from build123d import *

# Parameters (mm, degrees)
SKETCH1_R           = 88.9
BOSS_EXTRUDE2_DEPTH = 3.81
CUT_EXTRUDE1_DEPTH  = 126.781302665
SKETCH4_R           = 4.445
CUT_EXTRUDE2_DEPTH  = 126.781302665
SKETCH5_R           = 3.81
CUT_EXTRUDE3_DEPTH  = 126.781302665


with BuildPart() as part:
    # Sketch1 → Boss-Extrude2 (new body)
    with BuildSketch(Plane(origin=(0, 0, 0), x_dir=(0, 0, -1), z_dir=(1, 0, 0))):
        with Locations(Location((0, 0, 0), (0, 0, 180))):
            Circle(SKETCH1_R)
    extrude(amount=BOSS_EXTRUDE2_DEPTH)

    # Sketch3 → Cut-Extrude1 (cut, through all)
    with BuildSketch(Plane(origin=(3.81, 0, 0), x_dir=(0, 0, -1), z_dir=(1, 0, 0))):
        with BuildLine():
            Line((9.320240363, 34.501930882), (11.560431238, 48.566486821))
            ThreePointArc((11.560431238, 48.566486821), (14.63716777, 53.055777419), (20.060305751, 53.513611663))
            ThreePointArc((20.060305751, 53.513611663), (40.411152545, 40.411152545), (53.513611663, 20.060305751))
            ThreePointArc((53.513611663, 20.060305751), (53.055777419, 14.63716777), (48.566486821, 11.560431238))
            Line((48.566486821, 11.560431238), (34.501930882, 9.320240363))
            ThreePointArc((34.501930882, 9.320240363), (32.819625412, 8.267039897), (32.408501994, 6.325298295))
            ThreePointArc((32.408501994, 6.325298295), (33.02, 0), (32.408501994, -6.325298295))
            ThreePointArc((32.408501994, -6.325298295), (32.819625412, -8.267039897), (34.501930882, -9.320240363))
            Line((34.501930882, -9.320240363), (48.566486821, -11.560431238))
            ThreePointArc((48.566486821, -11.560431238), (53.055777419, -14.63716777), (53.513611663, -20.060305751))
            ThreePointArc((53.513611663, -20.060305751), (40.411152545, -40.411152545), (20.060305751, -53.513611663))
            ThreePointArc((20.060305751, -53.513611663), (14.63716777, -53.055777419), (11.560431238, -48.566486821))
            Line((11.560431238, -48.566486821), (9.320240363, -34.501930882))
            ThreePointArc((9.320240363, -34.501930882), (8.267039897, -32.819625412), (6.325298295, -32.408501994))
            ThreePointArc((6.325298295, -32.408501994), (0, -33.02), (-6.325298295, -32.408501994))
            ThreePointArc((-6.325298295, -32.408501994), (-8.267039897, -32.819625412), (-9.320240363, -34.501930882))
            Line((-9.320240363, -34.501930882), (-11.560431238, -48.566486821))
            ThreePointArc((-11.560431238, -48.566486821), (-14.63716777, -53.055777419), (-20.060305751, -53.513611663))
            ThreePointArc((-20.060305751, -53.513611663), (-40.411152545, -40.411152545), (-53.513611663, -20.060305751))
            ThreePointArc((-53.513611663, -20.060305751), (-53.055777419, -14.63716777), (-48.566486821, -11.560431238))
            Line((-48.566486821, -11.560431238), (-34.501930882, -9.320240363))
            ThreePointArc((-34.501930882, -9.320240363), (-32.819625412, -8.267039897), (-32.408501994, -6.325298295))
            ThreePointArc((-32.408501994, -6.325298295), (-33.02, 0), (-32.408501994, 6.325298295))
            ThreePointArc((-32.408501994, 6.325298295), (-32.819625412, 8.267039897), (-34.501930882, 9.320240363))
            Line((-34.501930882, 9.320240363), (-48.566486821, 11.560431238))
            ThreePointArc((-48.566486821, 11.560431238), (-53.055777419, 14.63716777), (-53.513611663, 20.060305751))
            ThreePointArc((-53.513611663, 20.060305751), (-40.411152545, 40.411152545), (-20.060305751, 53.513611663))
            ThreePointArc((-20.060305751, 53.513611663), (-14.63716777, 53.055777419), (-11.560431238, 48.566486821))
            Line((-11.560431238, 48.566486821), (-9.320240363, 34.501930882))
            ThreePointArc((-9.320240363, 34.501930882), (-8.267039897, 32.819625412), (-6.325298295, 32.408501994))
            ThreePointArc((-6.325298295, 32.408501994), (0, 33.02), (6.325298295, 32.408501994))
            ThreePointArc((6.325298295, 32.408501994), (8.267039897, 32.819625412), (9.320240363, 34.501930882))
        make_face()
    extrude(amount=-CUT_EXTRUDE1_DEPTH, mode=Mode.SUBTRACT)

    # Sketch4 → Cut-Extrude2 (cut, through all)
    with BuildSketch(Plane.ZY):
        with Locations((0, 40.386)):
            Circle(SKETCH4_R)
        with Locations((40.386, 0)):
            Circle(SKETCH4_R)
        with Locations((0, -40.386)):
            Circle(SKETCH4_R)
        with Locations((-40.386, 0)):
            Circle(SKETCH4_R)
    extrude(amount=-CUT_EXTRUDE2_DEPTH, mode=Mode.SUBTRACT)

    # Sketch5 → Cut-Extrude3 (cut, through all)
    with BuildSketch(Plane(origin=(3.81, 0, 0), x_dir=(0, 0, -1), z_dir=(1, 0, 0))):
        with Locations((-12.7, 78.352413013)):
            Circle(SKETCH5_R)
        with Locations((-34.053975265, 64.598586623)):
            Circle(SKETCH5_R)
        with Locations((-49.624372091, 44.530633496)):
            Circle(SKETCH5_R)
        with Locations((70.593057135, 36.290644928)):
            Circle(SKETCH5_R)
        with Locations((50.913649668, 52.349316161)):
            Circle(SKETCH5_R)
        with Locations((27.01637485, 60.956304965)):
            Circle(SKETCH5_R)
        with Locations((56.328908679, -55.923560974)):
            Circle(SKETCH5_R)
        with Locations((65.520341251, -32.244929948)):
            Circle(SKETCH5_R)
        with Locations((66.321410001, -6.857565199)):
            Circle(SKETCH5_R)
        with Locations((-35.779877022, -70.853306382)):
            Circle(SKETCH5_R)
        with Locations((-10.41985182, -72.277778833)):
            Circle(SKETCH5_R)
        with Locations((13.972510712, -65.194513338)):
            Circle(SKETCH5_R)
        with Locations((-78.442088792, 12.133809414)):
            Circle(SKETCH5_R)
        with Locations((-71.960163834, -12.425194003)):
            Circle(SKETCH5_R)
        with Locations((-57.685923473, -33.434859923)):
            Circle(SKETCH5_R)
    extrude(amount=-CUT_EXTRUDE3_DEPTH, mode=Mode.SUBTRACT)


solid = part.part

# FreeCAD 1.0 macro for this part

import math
import FreeCAD as App
import Part
import Sketcher
from FreeCAD import Vector
Q = App.Units.Quantity

doc = App.newDocument("Part")
body = doc.addObject("PartDesign::Body", "Body")

sketch1 = doc.addObject("Sketcher::SketchObject", "Sketch")
body.addObject(sketch1)
sketch1.AttachmentSupport = (doc.YZ_Plane, [""])
sketch1.MapMode = "FlatFace"
sketch1.addGeometry(Part.Circle(Vector(0, 0, 0), Vector(0, 0, 1), 89), False)
sketch1.addConstraint([
    Sketcher.Constraint("Coincident", 0, 3, -1, 1),
    Sketcher.Constraint("Diameter", 0, Q("7 in")),
])
pad1 = doc.addObject("PartDesign::Pad", "Pad")
body.addObject(pad1)
pad1.Profile = sketch1
pad1.Length = Q("0.15 in")

sketch2 = doc.addObject("Sketcher::SketchObject", "Sketch001")
body.addObject(sketch2)
sketch2.AttachmentSupport = (doc.YZ_Plane, [""])
sketch2.MapMode = "FlatFace"
sketch2.AttachmentOffset = App.Placement(Vector(0, 0, 0.15 * 25.4), App.Rotation())
sketch2.addGeometry([
    Part.LineSegment(Vector(48.6, -11.6, 0), Vector(34.5, -9.3, 0)),
    Part.ArcOfCircle(Part.Circle(Vector(34.9, -6.8, 0), Vector(0, 0, 1), 2.5), math.radians(169), math.radians(261)),
    Part.ArcOfCircle(Part.Circle(Vector(0, 0, 0), Vector(0, 0, 1), 33), math.radians(-11), math.radians(11)),
    Part.ArcOfCircle(Part.Circle(Vector(34.9, 6.8, 0), Vector(0, 0, 1), 2.5), math.radians(99), math.radians(191)),
    Part.LineSegment(Vector(34.5, 9.3, 0), Vector(48.6, 11.6, 0)),
    Part.ArcOfCircle(Part.Circle(Vector(47.6, 17.8, 0), Vector(0, 0, 1), 6.4), math.radians(-81), math.radians(21)),
    Part.ArcOfCircle(Part.Circle(Vector(0, 0, 0), Vector(0, 0, 1), 57.2), math.radians(21), math.radians(69)),
    Part.ArcOfCircle(Part.Circle(Vector(17.8, 47.6, 0), Vector(0, 0, 1), 6.4), math.radians(69), math.radians(171)),
    Part.LineSegment(Vector(11.6, 48.6, 0), Vector(9.3, 34.5, 0)),
    Part.ArcOfCircle(Part.Circle(Vector(6.8, 34.9, 0), Vector(0, 0, 1), 2.5), math.radians(-101), math.radians(-9)),
    Part.ArcOfCircle(Part.Circle(Vector(0, 0, 0), Vector(0, 0, 1), 33), math.radians(79), math.radians(101)),
    Part.ArcOfCircle(Part.Circle(Vector(-6.8, 34.9, 0), Vector(0, 0, 1), 2.5), math.radians(-171), math.radians(-79)),
    Part.LineSegment(Vector(-9.3, 34.5, 0), Vector(-11.6, 48.6, 0)),
    Part.ArcOfCircle(Part.Circle(Vector(-17.8, 47.6, 0), Vector(0, 0, 1), 6.4), math.radians(9), math.radians(111)),
    Part.ArcOfCircle(Part.Circle(Vector(0, 0, 0), Vector(0, 0, 1), 57.2), math.radians(111), math.radians(159)),
    Part.ArcOfCircle(Part.Circle(Vector(-47.6, 17.8, 0), Vector(0, 0, 1), 6.4), math.radians(159), math.radians(261)),
    Part.LineSegment(Vector(-48.6, 11.6, 0), Vector(-34.5, 9.3, 0)),
    Part.ArcOfCircle(Part.Circle(Vector(-34.9, 6.8, 0), Vector(0, 0, 1), 2.5), math.radians(-11), math.radians(81)),
    Part.ArcOfCircle(Part.Circle(Vector(0, 0, 0), Vector(0, 0, 1), 33), math.radians(169), math.radians(191)),
    Part.ArcOfCircle(Part.Circle(Vector(-34.9, -6.8, 0), Vector(0, 0, 1), 2.5), math.radians(-81), math.radians(11)),
    Part.LineSegment(Vector(-34.5, -9.3, 0), Vector(-48.6, -11.6, 0)),
    Part.ArcOfCircle(Part.Circle(Vector(-47.6, -17.8, 0), Vector(0, 0, 1), 6.4), math.radians(99), math.radians(201)),
    Part.ArcOfCircle(Part.Circle(Vector(0, 0, 0), Vector(0, 0, 1), 57.2), math.radians(-159), math.radians(-111)),
    Part.ArcOfCircle(Part.Circle(Vector(-17.8, -47.6, 0), Vector(0, 0, 1), 6.4), math.radians(-111), math.radians(-9)),
    Part.LineSegment(Vector(-11.6, -48.6, 0), Vector(-9.3, -34.5, 0)),
    Part.ArcOfCircle(Part.Circle(Vector(-6.8, -34.9, 0), Vector(0, 0, 1), 2.5), math.radians(79), math.radians(171)),
    Part.ArcOfCircle(Part.Circle(Vector(0, 0, 0), Vector(0, 0, 1), 33), math.radians(-101), math.radians(-79)),
    Part.ArcOfCircle(Part.Circle(Vector(6.8, -34.9, 0), Vector(0, 0, 1), 2.5), math.radians(9), math.radians(101)),
    Part.LineSegment(Vector(9.3, -34.5, 0), Vector(11.6, -48.6, 0)),
    Part.ArcOfCircle(Part.Circle(Vector(17.8, -47.6, 0), Vector(0, 0, 1), 6.4), math.radians(-171), math.radians(-69)),
    Part.ArcOfCircle(Part.Circle(Vector(0, 0, 0), Vector(0, 0, 1), 57.2), math.radians(-69), math.radians(-21)),
    Part.ArcOfCircle(Part.Circle(Vector(47.6, -17.8, 0), Vector(0, 0, 1), 6.4), math.radians(-21), math.radians(81)),
], False)
sketch2.addConstraint([
    Sketcher.Constraint("Tangent", 0, 2, 1, 2),
    Sketcher.Constraint("Tangent", 1, 1, 2, 1),
    Sketcher.Constraint("Tangent", 2, 2, 3, 2),
    Sketcher.Constraint("Tangent", 3, 1, 4, 1),
    Sketcher.Constraint("Tangent", 4, 2, 5, 1),
    Sketcher.Constraint("Tangent", 5, 2, 6, 1),
    Sketcher.Constraint("Tangent", 6, 2, 7, 1),
    Sketcher.Constraint("Tangent", 7, 2, 8, 1),
    Sketcher.Constraint("Tangent", 8, 2, 9, 2),
    Sketcher.Constraint("Tangent", 9, 1, 10, 1),
    Sketcher.Constraint("Tangent", 10, 2, 11, 2),
    Sketcher.Constraint("Tangent", 11, 1, 12, 1),
    Sketcher.Constraint("Tangent", 12, 2, 13, 1),
    Sketcher.Constraint("Tangent", 13, 2, 14, 1),
    Sketcher.Constraint("Tangent", 14, 2, 15, 1),
    Sketcher.Constraint("Tangent", 15, 2, 16, 1),
    Sketcher.Constraint("Tangent", 16, 2, 17, 2),
    Sketcher.Constraint("Tangent", 17, 1, 18, 1),
    Sketcher.Constraint("Tangent", 18, 2, 19, 2),
    Sketcher.Constraint("Tangent", 19, 1, 20, 1),
    Sketcher.Constraint("Tangent", 20, 2, 21, 1),
    Sketcher.Constraint("Tangent", 21, 2, 22, 1),
    Sketcher.Constraint("Tangent", 22, 2, 23, 1),
    Sketcher.Constraint("Tangent", 23, 2, 24, 1),
    Sketcher.Constraint("Tangent", 24, 2, 25, 2),
    Sketcher.Constraint("Tangent", 25, 1, 26, 1),
    Sketcher.Constraint("Tangent", 26, 2, 27, 2),
    Sketcher.Constraint("Tangent", 27, 1, 28, 1),
    Sketcher.Constraint("Tangent", 28, 2, 29, 1),
    Sketcher.Constraint("Tangent", 29, 2, 30, 1),
    Sketcher.Constraint("Tangent", 30, 2, 31, 1),
    Sketcher.Constraint("Tangent", 31, 2, 0, 1),
    Sketcher.Constraint("Coincident", 2, 3, -1, 1),
    Sketcher.Constraint("Coincident", 6, 3, -1, 1),
    Sketcher.Constraint("Coincident", 10, 3, -1, 1),
    Sketcher.Constraint("Coincident", 14, 3, -1, 1),
    Sketcher.Constraint("Coincident", 18, 3, -1, 1),
    Sketcher.Constraint("Coincident", 22, 3, -1, 1),
    Sketcher.Constraint("Coincident", 26, 3, -1, 1),
    Sketcher.Constraint("Coincident", 30, 3, -1, 1),
    Sketcher.Constraint("Equal", 1, 3),
    Sketcher.Constraint("Equal", 5, 7),
    Sketcher.Constraint("Equal", 3, 9),
    Sketcher.Constraint("Equal", 2, 10),
    Sketcher.Constraint("Equal", 9, 11),
    Sketcher.Constraint("Equal", 7, 13),
    Sketcher.Constraint("Equal", 6, 14),
    Sketcher.Constraint("Equal", 13, 15),
    Sketcher.Constraint("Equal", 11, 17),
    Sketcher.Constraint("Equal", 10, 18),
    Sketcher.Constraint("Equal", 17, 19),
    Sketcher.Constraint("Equal", 15, 21),
    Sketcher.Constraint("Equal", 14, 22),
    Sketcher.Constraint("Equal", 21, 23),
    Sketcher.Constraint("Equal", 19, 25),
    Sketcher.Constraint("Equal", 18, 26),
    Sketcher.Constraint("Equal", 25, 27),
    Sketcher.Constraint("Equal", 23, 29),
    Sketcher.Constraint("Equal", 22, 30),
    Sketcher.Constraint("Equal", 29, 31),
    Sketcher.Constraint("Symmetric", 0, 2, 16, 2, -1, 1),
    Sketcher.Constraint("Symmetric", 3, 1, 19, 1, -1, 1),
    Sketcher.Constraint("Symmetric", 7, 2, 23, 2, -1, 1),
    Sketcher.Constraint("Symmetric", 11, 1, 27, 1, -1, 1),
    Sketcher.Constraint("Symmetric", 8, 2, 11, 1, -2),
    Sketcher.Constraint("Symmetric", 4, 2, 15, 2, -2),
    Sketcher.Constraint("Perpendicular", 0, 8),
    Sketcher.Constraint("Equal", 4, 8),
    Sketcher.Constraint("Radius", 1, Q("0.1 in")),
    Sketcher.Constraint("Radius", 2, Q("1.3 in")),
    Sketcher.Constraint("Radius", 5, Q("0.25 in")),
    Sketcher.Constraint("Radius", 6, Q("2.25 in")),
    Sketcher.Constraint("Angle", 0, Q("170.949997 deg")),
    Sketcher.Constraint("DistanceX", -1, 1, 1, 1, 32.408502),
])
pocket1 = doc.addObject("PartDesign::Pocket", "Pocket")
body.addObject(pocket1)
pocket1.Profile = sketch2
pocket1.Type = "ThroughAll"

sketch3 = doc.addObject("Sketcher::SketchObject", "Sketch002")
body.addObject(sketch3)
sketch3.AttachmentSupport = (doc.YZ_Plane, [""])
sketch3.MapMode = "FlatFace"
sketch3.addGeometry([
    Part.Circle(Vector(40.4, 0, 0), Vector(0, 0, 1), 4.4),
    Part.Circle(Vector(0, 40.4, 0), Vector(0, 0, 1), 4.4),
    Part.Circle(Vector(-40.4, 0, 0), Vector(0, 0, 1), 4.4),
    Part.Circle(Vector(0, -40.4, 0), Vector(0, 0, 1), 4.4),
], False)
sketch3.addConstraint([
    Sketcher.Constraint("Equal", 0, 1),
    Sketcher.Constraint("Equal", 1, 2),
    Sketcher.Constraint("Equal", 2, 3),
    Sketcher.Constraint("Symmetric", 0, 3, 2, 3, -1, 1),
    Sketcher.Constraint("Symmetric", 1, 3, 3, 3, -1, 1),
    Sketcher.Constraint("PointOnObject", 0, 3, -1),
    Sketcher.Constraint("PointOnObject", 1, 3, -2),
    Sketcher.Constraint("Diameter", 0, Q("0.35 in")),
    Sketcher.Constraint("DistanceX", -1, 1, 0, 3, Q("1.59 in")),
    Sketcher.Constraint("DistanceY", -1, 1, 1, 3, Q("1.59 in")),
])
pocket2 = doc.addObject("PartDesign::Pocket", "Pocket001")
body.addObject(pocket2)
pocket2.Profile = sketch3
pocket2.Type = "ThroughAll"
pocket2.Reversed = True

sketch4 = doc.addObject("Sketcher::SketchObject", "Sketch003")
body.addObject(sketch4)
sketch4.AttachmentSupport = (doc.YZ_Plane, [""])
sketch4.MapMode = "FlatFace"
sketch4.AttachmentOffset = App.Placement(Vector(0, 0, 0.15 * 25.4), App.Rotation())
sketch4.addGeometry([
    Part.Circle(Vector(78.4, 12.7, 0), Vector(0, 0, 1), 3.8),
    Part.Circle(Vector(64.6, 34.1, 0), Vector(0, 0, 1), 3.8),
    Part.Circle(Vector(44.5, 49.6, 0), Vector(0, 0, 1), 3.8),
    Part.Circle(Vector(36.3, -70.6, 0), Vector(0, 0, 1), 3.8),
    Part.Circle(Vector(52.3, -50.9, 0), Vector(0, 0, 1), 3.8),
    Part.Circle(Vector(61, -27, 0), Vector(0, 0, 1), 3.8),
    Part.Circle(Vector(-55.9, -56.3, 0), Vector(0, 0, 1), 3.8),
    Part.Circle(Vector(-32.2, -65.5, 0), Vector(0, 0, 1), 3.8),
    Part.Circle(Vector(-6.9, -66.3, 0), Vector(0, 0, 1), 3.8),
    Part.Circle(Vector(-70.9, 35.8, 0), Vector(0, 0, 1), 3.8),
    Part.Circle(Vector(-72.3, 10.4, 0), Vector(0, 0, 1), 3.8),
    Part.Circle(Vector(-65.2, -14, 0), Vector(0, 0, 1), 3.8),
    Part.Circle(Vector(12.1, 78.4, 0), Vector(0, 0, 1), 3.8),
    Part.Circle(Vector(-12.4, 72, 0), Vector(0, 0, 1), 3.8),
    Part.Circle(Vector(-33.4, 57.7, 0), Vector(0, 0, 1), 3.8),
], False)
sketch4.addConstraint([
    Sketcher.Constraint("Equal", 0, 1),
    Sketcher.Constraint("Equal", 1, 2),
    Sketcher.Constraint("Equal", 2, 3),
    Sketcher.Constraint("Equal", 3, 4),
    Sketcher.Constraint("Equal", 4, 5),
    Sketcher.Constraint("Equal", 5, 6),
    Sketcher.Constraint("Equal", 6, 7),
    Sketcher.Constraint("Equal", 7, 8),
    Sketcher.Constraint("Equal", 8, 9),
    Sketcher.Constraint("Equal", 9, 10),
    Sketcher.Constraint("Equal", 10, 11),
    Sketcher.Constraint("Equal", 11, 12),
    Sketcher.Constraint("Equal", 12, 13),
    Sketcher.Constraint("Equal", 13, 14),
    Sketcher.Constraint("Diameter", 0, Q("0.3 in")),
    Sketcher.Constraint("DistanceY", -1, 1, 0, 3, Q("0.5 in")),
    Sketcher.Constraint("DistanceY", 8, 3, 6, 3, 9.992501),
    Sketcher.Constraint("DistanceY", 1, 3, 9, 3, 1.725902),
    Sketcher.Constraint("DistanceY", 8, 3, 11, 3, 52.348899),
    Sketcher.Constraint("DistanceY", 4, 3, -1, 1, 50.91365),
    Sketcher.Constraint("DistanceX", 6, 3, -1, 1, 55.923561),
    Sketcher.Constraint("DistanceY", 6, 3, -1, 1, 56.328909),
    Sketcher.Constraint("DistanceX", 7, 3, -1, 1, 32.24493),
    Sketcher.Constraint("DistanceY", 7, 3, -1, 1, 65.520341),
    Sketcher.Constraint("DistanceX", 10, 3, -1, 1, 72.277779),
    Sketcher.Constraint("DistanceY", -1, 1, 10, 3, 10.419852),
    Sketcher.Constraint("DistanceX", -1, 1, 12, 3, 12.133809),
    Sketcher.Constraint("DistanceY", -1, 1, 12, 3, 78.442089),
    Sketcher.Constraint("DistanceX", 14, 3, -1, 1, 33.43486),
    Sketcher.Constraint("DistanceX", 2, 3, 0, 3, 33.82178),
    Sketcher.Constraint("DistanceX", 3, 3, 0, 3, 42.061768),
    Sketcher.Constraint("DistanceX", 3, 3, 1, 3, 28.307942),
    Sketcher.Constraint("DistanceY", 3, 3, 2, 3, 120.217429),
    Sketcher.Constraint("DistanceX", 3, 3, 4, 3, 16.058671),
    Sketcher.Constraint("DistanceY", 4, 3, 2, 3, 100.538022),
    Sketcher.Constraint("DistanceX", 4, 3, 5, 3, 8.606989),
    Sketcher.Constraint("DistanceY", 5, 3, 1, 3, 61.07035),
    Sketcher.Constraint("DistanceX", 8, 3, 3, 3, 43.14821),
    Sketcher.Constraint("DistanceY", 7, 3, 9, 3, 101.300218),
    Sketcher.Constraint("DistanceX", 9, 3, 2, 3, 115.38394),
    Sketcher.Constraint("DistanceX", 11, 3, 8, 3, 58.336948),
    Sketcher.Constraint("DistanceY", 2, 3, 13, 3, 22.335792),
    Sketcher.Constraint("DistanceX", 13, 3, 1, 3, 77.023781),
    Sketcher.Constraint("DistanceY", 14, 3, 13, 3, 14.27424),
    Sketcher.Constraint("DistanceX", -1, 1, 0, 3, 78.352413),
])
pocket3 = doc.addObject("PartDesign::Pocket", "Pocket002")
body.addObject(pocket3)
pocket3.Profile = sketch4
pocket3.Type = "ThroughAll"

doc.recompute()
